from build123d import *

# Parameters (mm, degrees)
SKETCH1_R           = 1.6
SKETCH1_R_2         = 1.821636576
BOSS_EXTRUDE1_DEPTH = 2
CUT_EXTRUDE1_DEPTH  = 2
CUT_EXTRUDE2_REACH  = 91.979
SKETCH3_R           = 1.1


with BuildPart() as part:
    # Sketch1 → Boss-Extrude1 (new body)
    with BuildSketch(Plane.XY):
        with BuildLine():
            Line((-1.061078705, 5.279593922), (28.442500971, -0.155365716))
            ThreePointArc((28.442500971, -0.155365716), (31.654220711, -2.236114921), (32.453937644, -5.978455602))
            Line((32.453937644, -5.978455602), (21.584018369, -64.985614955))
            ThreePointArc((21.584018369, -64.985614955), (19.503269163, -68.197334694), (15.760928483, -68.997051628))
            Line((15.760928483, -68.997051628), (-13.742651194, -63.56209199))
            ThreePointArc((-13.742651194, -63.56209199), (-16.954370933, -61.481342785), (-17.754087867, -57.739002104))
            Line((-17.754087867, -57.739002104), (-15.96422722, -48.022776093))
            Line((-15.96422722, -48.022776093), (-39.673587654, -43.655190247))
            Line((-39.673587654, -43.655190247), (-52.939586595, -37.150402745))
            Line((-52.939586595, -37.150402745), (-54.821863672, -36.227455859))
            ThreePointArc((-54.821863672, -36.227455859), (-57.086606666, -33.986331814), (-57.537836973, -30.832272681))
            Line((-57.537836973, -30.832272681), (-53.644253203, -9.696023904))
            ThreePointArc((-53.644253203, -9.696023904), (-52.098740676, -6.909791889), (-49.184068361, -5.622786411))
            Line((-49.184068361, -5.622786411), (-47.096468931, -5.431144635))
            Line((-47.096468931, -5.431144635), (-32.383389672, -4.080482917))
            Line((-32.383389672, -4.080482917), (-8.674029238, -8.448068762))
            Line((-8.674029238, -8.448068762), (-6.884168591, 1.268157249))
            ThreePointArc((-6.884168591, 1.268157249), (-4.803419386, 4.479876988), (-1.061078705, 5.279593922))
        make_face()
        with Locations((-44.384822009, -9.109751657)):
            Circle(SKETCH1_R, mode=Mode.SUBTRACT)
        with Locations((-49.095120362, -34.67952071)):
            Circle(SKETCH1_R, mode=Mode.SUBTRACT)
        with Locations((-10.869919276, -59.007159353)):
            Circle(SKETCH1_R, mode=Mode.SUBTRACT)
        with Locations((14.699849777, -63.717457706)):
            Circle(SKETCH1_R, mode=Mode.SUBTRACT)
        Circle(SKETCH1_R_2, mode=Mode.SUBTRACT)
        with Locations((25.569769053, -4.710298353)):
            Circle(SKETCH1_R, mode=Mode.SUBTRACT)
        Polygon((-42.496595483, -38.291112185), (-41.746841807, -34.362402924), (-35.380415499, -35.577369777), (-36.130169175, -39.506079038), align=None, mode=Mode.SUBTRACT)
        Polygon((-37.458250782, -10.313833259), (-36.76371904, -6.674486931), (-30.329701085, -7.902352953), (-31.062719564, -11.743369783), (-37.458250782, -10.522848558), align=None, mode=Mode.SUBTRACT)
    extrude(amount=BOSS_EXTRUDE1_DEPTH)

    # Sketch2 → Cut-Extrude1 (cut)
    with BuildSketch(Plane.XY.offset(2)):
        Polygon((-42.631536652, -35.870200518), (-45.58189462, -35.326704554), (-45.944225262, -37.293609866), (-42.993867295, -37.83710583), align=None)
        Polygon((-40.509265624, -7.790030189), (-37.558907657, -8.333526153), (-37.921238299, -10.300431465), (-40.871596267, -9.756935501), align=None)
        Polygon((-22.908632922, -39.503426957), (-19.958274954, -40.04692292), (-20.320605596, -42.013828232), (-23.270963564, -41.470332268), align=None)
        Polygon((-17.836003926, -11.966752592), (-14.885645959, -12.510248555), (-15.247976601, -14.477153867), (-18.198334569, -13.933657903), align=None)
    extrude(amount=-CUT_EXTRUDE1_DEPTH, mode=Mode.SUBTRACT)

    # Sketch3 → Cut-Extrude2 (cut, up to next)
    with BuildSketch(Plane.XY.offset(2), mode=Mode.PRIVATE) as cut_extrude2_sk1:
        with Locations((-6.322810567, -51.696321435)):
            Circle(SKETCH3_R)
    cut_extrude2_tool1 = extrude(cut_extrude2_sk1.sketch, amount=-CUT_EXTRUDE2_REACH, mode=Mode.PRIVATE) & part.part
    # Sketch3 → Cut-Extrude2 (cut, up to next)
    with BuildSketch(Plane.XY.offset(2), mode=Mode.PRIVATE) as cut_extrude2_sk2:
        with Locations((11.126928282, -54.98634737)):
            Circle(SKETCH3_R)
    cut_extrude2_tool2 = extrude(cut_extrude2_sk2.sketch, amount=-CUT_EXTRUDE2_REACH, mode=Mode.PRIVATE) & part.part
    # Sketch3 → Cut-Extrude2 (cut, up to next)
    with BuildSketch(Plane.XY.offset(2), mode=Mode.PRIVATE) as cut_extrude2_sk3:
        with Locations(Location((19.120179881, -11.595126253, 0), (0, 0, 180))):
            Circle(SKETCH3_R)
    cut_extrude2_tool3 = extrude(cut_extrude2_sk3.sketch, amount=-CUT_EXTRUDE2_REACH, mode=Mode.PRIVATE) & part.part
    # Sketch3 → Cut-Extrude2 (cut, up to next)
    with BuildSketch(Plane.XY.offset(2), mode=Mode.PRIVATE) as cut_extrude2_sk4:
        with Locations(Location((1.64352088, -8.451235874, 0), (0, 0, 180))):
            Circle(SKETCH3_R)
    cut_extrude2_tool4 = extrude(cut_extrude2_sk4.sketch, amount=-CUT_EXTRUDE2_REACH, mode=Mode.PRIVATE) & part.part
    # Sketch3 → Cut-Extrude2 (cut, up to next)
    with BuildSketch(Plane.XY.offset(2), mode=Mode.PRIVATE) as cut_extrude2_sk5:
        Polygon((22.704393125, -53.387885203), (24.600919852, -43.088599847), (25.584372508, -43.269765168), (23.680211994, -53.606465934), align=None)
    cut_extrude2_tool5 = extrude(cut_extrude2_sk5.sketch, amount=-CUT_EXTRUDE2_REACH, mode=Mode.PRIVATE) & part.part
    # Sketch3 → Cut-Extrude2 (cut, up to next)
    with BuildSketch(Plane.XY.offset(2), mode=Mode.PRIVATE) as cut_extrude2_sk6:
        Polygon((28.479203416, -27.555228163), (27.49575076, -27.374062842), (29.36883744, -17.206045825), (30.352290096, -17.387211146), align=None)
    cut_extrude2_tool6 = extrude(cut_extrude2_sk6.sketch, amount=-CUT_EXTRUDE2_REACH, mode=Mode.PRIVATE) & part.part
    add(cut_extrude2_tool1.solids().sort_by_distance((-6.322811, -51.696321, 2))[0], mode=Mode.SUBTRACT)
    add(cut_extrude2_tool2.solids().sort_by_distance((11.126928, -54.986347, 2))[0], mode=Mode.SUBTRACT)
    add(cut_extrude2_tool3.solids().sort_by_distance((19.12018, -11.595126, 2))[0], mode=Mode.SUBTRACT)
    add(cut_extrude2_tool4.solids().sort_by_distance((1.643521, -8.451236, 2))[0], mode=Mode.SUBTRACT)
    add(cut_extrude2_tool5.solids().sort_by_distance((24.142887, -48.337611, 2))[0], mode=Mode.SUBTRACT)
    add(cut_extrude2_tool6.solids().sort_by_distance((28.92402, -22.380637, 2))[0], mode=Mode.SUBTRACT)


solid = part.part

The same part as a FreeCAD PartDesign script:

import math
import FreeCAD as App
import Part
import Sketcher
from FreeCAD import Vector


def add_polygon(sketch, points):
    """Adds a closed chain of lines whose ends are joined by coincident constraints."""
    first, n = sketch.GeometryCount, len(points)
    for a, b in zip(points, points[1:] + points[:1]):
        sketch.addGeometry(Part.LineSegment(App.Vector(*a, 0), App.Vector(*b, 0)), False)
    for i in range(n):
        sketch.addConstraint(Sketcher.Constraint("Coincident", first + i, 2, first + (i + 1) % n, 1))

doc = App.newDocument("Part")
body = doc.addObject("PartDesign::Body", "Body")

sketch1 = body.newObject("Sketcher::SketchObject", "Sketch")
sketch1.AttachmentSupport = (doc.getObject("XY_Plane"), [""])
sketch1.MapMode = "FlatFace"
sketch1.addGeometry(Part.LineSegment(Vector(28.44, -0.16, 0), Vector(-1.06, 5.28, 0)), False)
sketch1.addGeometry(Part.ArcOfCircle(Part.Circle(Vector(-1.97, 0.36, 0), Vector(0, 0, 1), 5), math.radians(80), math.radians(170)), False)
sketch1.addGeometry(Part.LineSegment(Vector(-6.88, 1.27, 0), Vector(-8.67, -8.45, 0)), False)
sketch1.addGeometry(Part.LineSegment(Vector(-8.67, -8.45, 0), Vector(-32.38, -4.08, 0)), False)
sketch1.addGeometry(Part.LineSegment(Vector(-32.38, -4.08, 0), Vector(-47.1, -5.43, 0)), False)
sketch1.addGeometry(Part.LineSegment(Vector(-47.1, -5.43, 0), Vector(-49.18, -5.62, 0)), False)
sketch1.addGeometry(Part.ArcOfCircle(Part.Circle(Vector(-48.73, -10.6, 0), Vector(0, 0, 1), 5), math.radians(95), math.radians(170)), False)
sketch1.addGeometry(Part.LineSegment(Vector(-53.64, -9.7, 0), Vector(-57.54, -30.83, 0)), False)
sketch1.addGeometry(Part.ArcOfCircle(Part.Circle(Vector(-52.62, -31.74, 0), Vector(0, 0, 1), 5), math.radians(170), math.radians(244)), False)
sketch1.addGeometry(Part.LineSegment(Vector(-54.82, -36.23, 0), Vector(-52.94, -37.15, 0)), False)
sketch1.addGeometry(Part.LineSegment(Vector(-52.94, -37.15, 0), Vector(-39.67, -43.66, 0)), False)
sketch1.addGeometry(Part.LineSegment(Vector(-39.67, -43.66, 0), Vector(-15.96, -48.02, 0)), False)
sketch1.addGeometry(Part.LineSegment(Vector(-15.96, -48.02, 0), Vector(-17.75, -57.74, 0)), False)
sketch1.addGeometry(Part.ArcOfCircle(Part.Circle(Vector(-12.84, -58.64, 0), Vector(0, 0, 1), 5), math.radians(170), math.radians(260)), False)
sketch1.addGeometry(Part.LineSegment(Vector(-13.74, -63.56, 0), Vector(15.76, -69, 0)), False)
sketch1.addGeometry(Part.ArcOfCircle(Part.Circle(Vector(16.67, -64.08, 0), Vector(0, 0, 1), 5), math.radians(-100), math.radians(-10)), False)
sketch1.addGeometry(Part.LineSegment(Vector(21.58, -64.99, 0), Vector(32.45, -5.98, 0)), False)
sketch1.addGeometry(Part.ArcOfCircle(Part.Circle(Vector(27.54, -5.07, 0), Vector(0, 0, 1), 5), math.radians(-10), math.radians(80)), False)
sketch1.addGeometry(Part.Circle(Vector(14.7, -63.72, 0), Vector(0, 0, 1), 1.6), False)
sketch1.addGeometry(Part.Circle(Vector(-10.87, -59.01, 0), Vector(0, 0, 1), 1.6), False)
add_polygon(sketch1, [(-42.5, -38.29), (-41.75, -34.36), (-35.38, -35.58), (-36.13, -39.51)])
sketch1.addGeometry(Part.Circle(Vector(-49.1, -34.68, 0), Vector(0, 0, 1), 1.6), False)
sketch1.addGeometry(Part.Circle(Vector(25.57, -4.71, 0), Vector(0, 0, 1), 1.6), False)
sketch1.addGeometry(Part.Circle(Vector(0, 0, 0), Vector(0, 0, 1), 1.82), False)
add_polygon(sketch1, [(-37.46, -10.31), (-36.76, -6.67), (-30.33, -7.9), (-31.06, -11.74), (-37.46, -10.52)])
sketch1.addGeometry(Part.Circle(Vector(-44.38, -9.11, 0), Vector(0, 0, 1), 1.6), False)
sketch1.addConstraint([
    Sketcher.Constraint("Tangent", 0, 2, 1, 1),
    Sketcher.Constraint("Tangent", 1, 2, 2, 1),
    Sketcher.Constraint("Coincident", 2, 2, 3, 1),
    Sketcher.Constraint("Coincident", 3, 2, 4, 1),
    Sketcher.Constraint("Coincident", 4, 2, 5, 1),
    Sketcher.Constraint("Tangent", 5, 2, 6, 1),
    Sketcher.Constraint("Tangent", 6, 2, 7, 1),
    Sketcher.Constraint("Tangent", 7, 2, 8, 1),
    Sketcher.Constraint("Tangent", 8, 2, 9, 1),
    Sketcher.Constraint("Coincident", 9, 2, 10, 1),
    Sketcher.Constraint("Coincident", 10, 2, 11, 1),
    Sketcher.Constraint("Coincident", 11, 2, 12, 1),
    Sketcher.Constraint("Tangent", 12, 2, 13, 1),
    Sketcher.Constraint("Tangent", 13, 2, 14, 1),
    Sketcher.Constraint("Tangent", 14, 2, 15, 1),
    Sketcher.Constraint("Tangent", 15, 2, 16, 1),
    Sketcher.Constraint("Tangent", 16, 2, 17, 1),
    Sketcher.Constraint("Tangent", 17, 2, 0, 1),
    Sketcher.Constraint("Vertical", 31),
    Sketcher.Constraint("Coincident", 26, 3, -1, 1),
    Sketcher.Constraint("Equal", 1, 6),
    Sketcher.Constraint("Equal", 6, 8),
    Sketcher.Constraint("Equal", 8, 13),
    Sketcher.Constraint("Equal", 13, 15),
    Sketcher.Constraint("Equal", 15, 17),
    Sketcher.Constraint("Equal", 18, 19),
    Sketcher.Constraint("Equal", 19, 24),
    Sketcher.Constraint("Equal", 24, 25),
    Sketcher.Constraint("Equal", 25, 32),
    Sketcher.Constraint("Perpendicular", 0, 2),
    Sketcher.Constraint("Perpendicular", 2, 3),
    Sketcher.Constraint("Parallel", 4, 5),
    Sketcher.Constraint("Perpendicular", 3, 7),
    Sketcher.Constraint("Parallel", 9, 10),
    Sketcher.Constraint("Perpendicular", 7, 11),
    Sketcher.Constraint("Perpendicular", 11, 12),
    Sketcher.Constraint("Perpendicular", 12, 14),
    Sketcher.Constraint("Perpendicular", 14, 16),
    Sketcher.Constraint("Perpendicular", 20, 21),
    Sketcher.Constraint("Perpendicular", 21, 22),
    Sketcher.Constraint("Perpendicular", 22, 23),
    Sketcher.Constraint("Perpendicular", 23, 27),
    Sketcher.Constraint("Perpendicular", 27, 28),
    Sketcher.Constraint("Perpendicular", 28, 29),
    Sketcher.Constraint("Perpendicular", 29, 30),
    Sketcher.Constraint("Equal", 5, 9),
    Sketcher.Constraint("Equal", 4, 10),
    Sketcher.Constraint("Equal", 3, 11),
    Sketcher.Constraint("Equal", 2, 12),
    Sketcher.Constraint("Equal", 0, 14),
    Sketcher.Constraint("Radius", 1, 5.0),
    Sketcher.Constraint("Diameter", 18, 3.2),
    Sketcher.Constraint("Distance", 0, 30.0),
    Sketcher.Constraint("Distance", 16, 60.0),
    Sketcher.Constraint("Diameter", 26, 3.643273),
    Sketcher.Constraint("DistanceX", 9, 2, 10, 2, 13.265999),
    Sketcher.Constraint("DistanceY", 9, 2, 20, 2, 2.788),
    Sketcher.Constraint("DistanceX", 27, 2, 29, 2, 5.700999),
    Sketcher.Constraint("DistanceY", 8, 3, -1, 1, 31.738099),
    Sketcher.Constraint("DistanceY", 25, 3, -1, 1, 4.710298),
    Sketcher.Constraint("DistanceX", -1, 1, 17, 2, 28.442501),
    Sketcher.Constraint("DistanceX", 28, 2, -1, 1, 30.329701),
    Sketcher.Constraint("DistanceX", 13, 3, 17, 3, 40.373499),
    Sketcher.Constraint("DistanceY", 18, 3, 19, 3, 4.710298),
    Sketcher.Constraint("DistanceX", 24, 3, 19, 3, 38.225201),
    Sketcher.Constraint("DistanceY", 6, 3, 32, 3, 1.492099),
    Sketcher.Constraint("DistanceX", 24, 3, 32, 3, 4.710298),
    Sketcher.Constraint("DistanceY", 2, 2, 1, 3, 8.810399),
    Sketcher.Constraint("DistanceX", 2, 2, 25, 3, 34.243798),
    Sketcher.Constraint("DistanceX", 6, 3, 3, 2, 16.3436),
    Sketcher.Constraint("DistanceX", 5, 2, 4, 2, 2.087599),
    Sketcher.Constraint("DistanceX", 10, 2, 12, 2, 21.9195),
    Sketcher.Constraint("DistanceX", 13, 2, 18, 3, 28.442501),
    Sketcher.Constraint("DistanceY", 27, 2, 5, 2, 1.051701),
    Sketcher.Constraint("DistanceY", 32, 3, 28, 2, 1.207399),
    Sketcher.Constraint("Distance", 20, 3.999611),
    Sketcher.Constraint("Distance", 21, 6.481322),
    Sketcher.Constraint("Distance", 30, 6.510952),
    Sketcher.Constraint("DistanceY", 31, 1, 31, 2, 0.209015),
    Sketcher.Constraint("DistanceX", 19, 3, -1, 1, 10.869919),
    Sketcher.Constraint("DistanceY", 19, 3, -1, 1, 59.007159),
    Sketcher.Constraint("DistanceY", 24, 3, -1, 1, 34.679521),
    Sketcher.Constraint("DistanceX", 20, 2, -1, 1, 41.746842),
])
pad1 = body.newObject("PartDesign::Pad", "Pad")
pad1.Profile = sketch1
pad1.Length = 2

sketch2 = body.newObject("Sketcher::SketchObject", "Sketch001")
sketch2.AttachmentSupport = (doc.getObject("XY_Plane"), [""])
sketch2.MapMode = "FlatFace"
sketch2.AttachmentOffset = App.Placement(Vector(0, 0, 2), App.Rotation())
add_polygon(sketch2, [(-42.6, -35.9), (-45.6, -35.3), (-45.9, -37.3), (-43, -37.8)])
add_polygon(sketch2, [(-37.6, -8.3), (-40.5, -7.8), (-40.9, -9.8), (-37.9, -10.3)])
add_polygon(sketch2, [(-20, -40), (-22.9, -39.5), (-23.3, -41.5), (-20.3, -42)])
add_polygon(sketch2, [(-14.9, -12.5), (-17.8, -12), (-18.2, -13.9), (-15.2, -14.5)])
sketch2.addConstraint([
    Sketcher.Constraint("Perpendicular", 0, 1),
    Sketcher.Constraint("Perpendicular", 1, 2),
    Sketcher.Constraint("Perpendicular", 2, 3),
    Sketcher.Constraint("Perpendicular", 3, 4),
    Sketcher.Constraint("Perpendicular", 4, 5),
    Sketcher.Constraint("Perpendicular", 5, 6),
    Sketcher.Constraint("Perpendicular", 6, 7),
    Sketcher.Constraint("Perpendicular", 7, 8),
    Sketcher.Constraint("Perpendicular", 8, 9),
    Sketcher.Constraint("Perpendicular", 9, 10),
    Sketcher.Constraint("Perpendicular", 10, 11),
    Sketcher.Constraint("Perpendicular", 11, 12),
    Sketcher.Constraint("Perpendicular", 12, 13),
    Sketcher.Constraint("Perpendicular", 13, 14),
    Sketcher.Constraint("Perpendicular", 14, 15),
    Sketcher.Constraint("Equal", 2, 4),
    Sketcher.Constraint("Equal", 3, 5),
    Sketcher.Constraint("Equal", 6, 8),
    Sketcher.Constraint("Equal", 7, 9),
    Sketcher.Constraint("Equal", 10, 12),
    Sketcher.Constraint("Equal", 11, 13),
    Sketcher.Constraint("Distance", 0, 3.0),
    Sketcher.Constraint("Distance", 1, 2.0),
    Sketcher.Constraint("DistanceY", 3, 2, -1, 1, 35.870201),
    Sketcher.Constraint("DistanceY", 2, 2, 0, 2, 2.510401),
    Sketcher.Constraint("DistanceX", 2, 2, 4, 2, 2.484602),
    Sketcher.Constraint("DistanceX", 11, 2, 14, 2, 4.710298),
    Sketcher.Constraint("DistanceY", 4, 2, -1, 1, 7.79003),
    Sketcher.Constraint("DistanceX", 6, 2, -1, 1, 37.921238),
    Sketcher.Constraint("DistanceY", 10, 2, -1, 1, 42.013828),
    Sketcher.Constraint("DistanceY", 15, 2, -1, 1, 12.510249),
    Sketcher.Constraint("DistanceX", 0, 2, 8, 2, 22.673262),
])
pocket1 = body.newObject("PartDesign::Pocket", "Pocket")
pocket1.Profile = sketch2
pocket1.Length = 2

sketch3 = body.newObject("Sketcher::SketchObject", "Sketch002")
sketch3.AttachmentSupport = (doc.getObject("XY_Plane"), [""])
sketch3.MapMode = "FlatFace"
sketch3.AttachmentOffset = App.Placement(Vector(0, 0, 2), App.Rotation())
sketch3.addGeometry(Part.Circle(Vector(-6.3, -51.7, 0), Vector(0, 0, 1), 1.1), False)
sketch3.addConstraint([
    Sketcher.Constraint("Diameter", 0, 2.2),
    Sketcher.Constraint("DistanceX", 0, 3, -1, 1, 6.322811),
    Sketcher.Constraint("DistanceY", 0, 3, -1, 1, 51.696321),
])
pocket2 = body.newObject("PartDesign::Pocket", "Pocket001")
pocket2.Profile = sketch3
pocket2.Type = "UpToFirst"

sketch4 = body.newObject("Sketcher::SketchObject", "Sketch003")
sketch4.AttachmentSupport = (doc.getObject("XY_Plane"), [""])
sketch4.MapMode = "FlatFace"
sketch4.AttachmentOffset = App.Placement(Vector(0, 0, 2), App.Rotation())
sketch4.addGeometry(Part.Circle(Vector(11.1, -55, 0), Vector(0, 0, 1), 1.1), False)
sketch4.addConstraint([
    Sketcher.Constraint("Diameter", 0, 2.2),
    Sketcher.Constraint("DistanceX", -1, 1, 0, 3, 11.126928),
    Sketcher.Constraint("DistanceY", 0, 3, -1, 1, 54.986347),
])
pocket3 = body.newObject("PartDesign::Pocket", "Pocket002")
pocket3.Profile = sketch4
pocket3.Type = "UpToFirst"

sketch5 = body.newObject("Sketcher::SketchObject", "Sketch004")
sketch5.AttachmentSupport = (doc.getObject("XY_Plane"), [""])
sketch5.MapMode = "FlatFace"
sketch5.AttachmentOffset = App.Placement(Vector(0, 0, 2), App.Rotation())
sketch5.addGeometry(Part.Circle(Vector(19.1, -11.6, 0), Vector(0, 0, 1), 1.1), False)
sketch5.addConstraint([
    Sketcher.Constraint("Diameter", 0, 2.2),
    Sketcher.Constraint("DistanceX", -1, 1, 0, 3, 19.12018),
    Sketcher.Constraint("DistanceY", 0, 3, -1, 1, 11.595126),
])
pocket4 = body.newObject("PartDesign::Pocket", "Pocket003")
pocket4.Profile = sketch5
pocket4.Type = "UpToFirst"

sketch6 = body.newObject("Sketcher::SketchObject", "Sketch005")
sketch6.AttachmentSupport = (doc.getObject("XY_Plane"), [""])
sketch6.MapMode = "FlatFace"
sketch6.AttachmentOffset = App.Placement(Vector(0, 0, 2), App.Rotation())
sketch6.addGeometry(Part.Circle(Vector(1.6, -8.5, 0), Vector(0, 0, 1), 1.1), False)
sketch6.addConstraint([
    Sketcher.Constraint("Diameter", 0, 2.2),
    Sketcher.Constraint("DistanceX", -1, 1, 0, 3, 1.643521),
    Sketcher.Constraint("DistanceY", 0, 3, -1, 1, 8.451236),
])
pocket5 = body.newObject("PartDesign::Pocket", "Pocket004")
pocket5.Profile = sketch6
pocket5.Type = "UpToFirst"

sketch7 = body.newObject("Sketcher::SketchObject", "Sketch006")
sketch7.AttachmentSupport = (doc.getObject("XY_Plane"), [""])
sketch7.MapMode = "FlatFace"
sketch7.AttachmentOffset = App.Placement(Vector(0, 0, 2), App.Rotation())
add_polygon(sketch7, [(24.6, -43.1), (22.7, -53.4), (23.7, -53.6), (25.6, -43.3)])
sketch7.addConstraint([
    Sketcher.Constraint("Perpendicular", 2, 3),
    Sketcher.Constraint("Equal", 1, 3),
    Sketcher.Constraint("Distance", 1, 1.0),
    Sketcher.Constraint("DistanceY", 3, 2, -1, 1, 43.0886),
    Sketcher.Constraint("DistanceY", 1, 2, 2, 2, 10.336701),
    Sketcher.Constraint("DistanceX", -1, 1, 1, 2, 23.680212),
    Sketcher.Constraint("DistanceX", -1, 1, 3, 2, 24.60092),
    Sketcher.Constraint("DistanceX", 0, 2, 1, 2, 0.975819),
])
pocket6 = body.newObject("PartDesign::Pocket", "Pocket005")
pocket6.Profile = sketch7
pocket6.Type = "UpToFirst"

sketch8 = body.newObject("Sketcher::SketchObject", "Sketch007")
sketch8.AttachmentSupport = (doc.getObject("XY_Plane"), [""])
sketch8.MapMode = "FlatFace"
sketch8.AttachmentOffset = App.Placement(Vector(0, 0, 2), App.Rotation())
add_polygon(sketch8, [(27.5, -27.4), (28.5, -27.6), (30.4, -17.4), (29.4, -17.2)])
sketch8.addConstraint([
    Sketcher.Constraint("Perpendicular", 0, 1),
    Sketcher.Constraint("Perpendicular", 1, 2),
    Sketcher.Constraint("Perpendicular", 2, 3),
    Sketcher.Constraint("Distance", 0, 1.0),
    Sketcher.Constraint("Distance", 1, 10.339102),
    Sketcher.Constraint("DistanceY", 0, 2, -1, 1, 27.555228),
    Sketcher.Constraint("DistanceX", -1, 1, 1, 2, 30.35229),
    Sketcher.Constraint("DistanceY", 1, 2, -1, 1, 17.387211),
])
pocket7 = body.newObject("PartDesign::Pocket", "Pocket006")
pocket7.Profile = sketch8
pocket7.Type = "UpToFirst"

doc.recompute()
